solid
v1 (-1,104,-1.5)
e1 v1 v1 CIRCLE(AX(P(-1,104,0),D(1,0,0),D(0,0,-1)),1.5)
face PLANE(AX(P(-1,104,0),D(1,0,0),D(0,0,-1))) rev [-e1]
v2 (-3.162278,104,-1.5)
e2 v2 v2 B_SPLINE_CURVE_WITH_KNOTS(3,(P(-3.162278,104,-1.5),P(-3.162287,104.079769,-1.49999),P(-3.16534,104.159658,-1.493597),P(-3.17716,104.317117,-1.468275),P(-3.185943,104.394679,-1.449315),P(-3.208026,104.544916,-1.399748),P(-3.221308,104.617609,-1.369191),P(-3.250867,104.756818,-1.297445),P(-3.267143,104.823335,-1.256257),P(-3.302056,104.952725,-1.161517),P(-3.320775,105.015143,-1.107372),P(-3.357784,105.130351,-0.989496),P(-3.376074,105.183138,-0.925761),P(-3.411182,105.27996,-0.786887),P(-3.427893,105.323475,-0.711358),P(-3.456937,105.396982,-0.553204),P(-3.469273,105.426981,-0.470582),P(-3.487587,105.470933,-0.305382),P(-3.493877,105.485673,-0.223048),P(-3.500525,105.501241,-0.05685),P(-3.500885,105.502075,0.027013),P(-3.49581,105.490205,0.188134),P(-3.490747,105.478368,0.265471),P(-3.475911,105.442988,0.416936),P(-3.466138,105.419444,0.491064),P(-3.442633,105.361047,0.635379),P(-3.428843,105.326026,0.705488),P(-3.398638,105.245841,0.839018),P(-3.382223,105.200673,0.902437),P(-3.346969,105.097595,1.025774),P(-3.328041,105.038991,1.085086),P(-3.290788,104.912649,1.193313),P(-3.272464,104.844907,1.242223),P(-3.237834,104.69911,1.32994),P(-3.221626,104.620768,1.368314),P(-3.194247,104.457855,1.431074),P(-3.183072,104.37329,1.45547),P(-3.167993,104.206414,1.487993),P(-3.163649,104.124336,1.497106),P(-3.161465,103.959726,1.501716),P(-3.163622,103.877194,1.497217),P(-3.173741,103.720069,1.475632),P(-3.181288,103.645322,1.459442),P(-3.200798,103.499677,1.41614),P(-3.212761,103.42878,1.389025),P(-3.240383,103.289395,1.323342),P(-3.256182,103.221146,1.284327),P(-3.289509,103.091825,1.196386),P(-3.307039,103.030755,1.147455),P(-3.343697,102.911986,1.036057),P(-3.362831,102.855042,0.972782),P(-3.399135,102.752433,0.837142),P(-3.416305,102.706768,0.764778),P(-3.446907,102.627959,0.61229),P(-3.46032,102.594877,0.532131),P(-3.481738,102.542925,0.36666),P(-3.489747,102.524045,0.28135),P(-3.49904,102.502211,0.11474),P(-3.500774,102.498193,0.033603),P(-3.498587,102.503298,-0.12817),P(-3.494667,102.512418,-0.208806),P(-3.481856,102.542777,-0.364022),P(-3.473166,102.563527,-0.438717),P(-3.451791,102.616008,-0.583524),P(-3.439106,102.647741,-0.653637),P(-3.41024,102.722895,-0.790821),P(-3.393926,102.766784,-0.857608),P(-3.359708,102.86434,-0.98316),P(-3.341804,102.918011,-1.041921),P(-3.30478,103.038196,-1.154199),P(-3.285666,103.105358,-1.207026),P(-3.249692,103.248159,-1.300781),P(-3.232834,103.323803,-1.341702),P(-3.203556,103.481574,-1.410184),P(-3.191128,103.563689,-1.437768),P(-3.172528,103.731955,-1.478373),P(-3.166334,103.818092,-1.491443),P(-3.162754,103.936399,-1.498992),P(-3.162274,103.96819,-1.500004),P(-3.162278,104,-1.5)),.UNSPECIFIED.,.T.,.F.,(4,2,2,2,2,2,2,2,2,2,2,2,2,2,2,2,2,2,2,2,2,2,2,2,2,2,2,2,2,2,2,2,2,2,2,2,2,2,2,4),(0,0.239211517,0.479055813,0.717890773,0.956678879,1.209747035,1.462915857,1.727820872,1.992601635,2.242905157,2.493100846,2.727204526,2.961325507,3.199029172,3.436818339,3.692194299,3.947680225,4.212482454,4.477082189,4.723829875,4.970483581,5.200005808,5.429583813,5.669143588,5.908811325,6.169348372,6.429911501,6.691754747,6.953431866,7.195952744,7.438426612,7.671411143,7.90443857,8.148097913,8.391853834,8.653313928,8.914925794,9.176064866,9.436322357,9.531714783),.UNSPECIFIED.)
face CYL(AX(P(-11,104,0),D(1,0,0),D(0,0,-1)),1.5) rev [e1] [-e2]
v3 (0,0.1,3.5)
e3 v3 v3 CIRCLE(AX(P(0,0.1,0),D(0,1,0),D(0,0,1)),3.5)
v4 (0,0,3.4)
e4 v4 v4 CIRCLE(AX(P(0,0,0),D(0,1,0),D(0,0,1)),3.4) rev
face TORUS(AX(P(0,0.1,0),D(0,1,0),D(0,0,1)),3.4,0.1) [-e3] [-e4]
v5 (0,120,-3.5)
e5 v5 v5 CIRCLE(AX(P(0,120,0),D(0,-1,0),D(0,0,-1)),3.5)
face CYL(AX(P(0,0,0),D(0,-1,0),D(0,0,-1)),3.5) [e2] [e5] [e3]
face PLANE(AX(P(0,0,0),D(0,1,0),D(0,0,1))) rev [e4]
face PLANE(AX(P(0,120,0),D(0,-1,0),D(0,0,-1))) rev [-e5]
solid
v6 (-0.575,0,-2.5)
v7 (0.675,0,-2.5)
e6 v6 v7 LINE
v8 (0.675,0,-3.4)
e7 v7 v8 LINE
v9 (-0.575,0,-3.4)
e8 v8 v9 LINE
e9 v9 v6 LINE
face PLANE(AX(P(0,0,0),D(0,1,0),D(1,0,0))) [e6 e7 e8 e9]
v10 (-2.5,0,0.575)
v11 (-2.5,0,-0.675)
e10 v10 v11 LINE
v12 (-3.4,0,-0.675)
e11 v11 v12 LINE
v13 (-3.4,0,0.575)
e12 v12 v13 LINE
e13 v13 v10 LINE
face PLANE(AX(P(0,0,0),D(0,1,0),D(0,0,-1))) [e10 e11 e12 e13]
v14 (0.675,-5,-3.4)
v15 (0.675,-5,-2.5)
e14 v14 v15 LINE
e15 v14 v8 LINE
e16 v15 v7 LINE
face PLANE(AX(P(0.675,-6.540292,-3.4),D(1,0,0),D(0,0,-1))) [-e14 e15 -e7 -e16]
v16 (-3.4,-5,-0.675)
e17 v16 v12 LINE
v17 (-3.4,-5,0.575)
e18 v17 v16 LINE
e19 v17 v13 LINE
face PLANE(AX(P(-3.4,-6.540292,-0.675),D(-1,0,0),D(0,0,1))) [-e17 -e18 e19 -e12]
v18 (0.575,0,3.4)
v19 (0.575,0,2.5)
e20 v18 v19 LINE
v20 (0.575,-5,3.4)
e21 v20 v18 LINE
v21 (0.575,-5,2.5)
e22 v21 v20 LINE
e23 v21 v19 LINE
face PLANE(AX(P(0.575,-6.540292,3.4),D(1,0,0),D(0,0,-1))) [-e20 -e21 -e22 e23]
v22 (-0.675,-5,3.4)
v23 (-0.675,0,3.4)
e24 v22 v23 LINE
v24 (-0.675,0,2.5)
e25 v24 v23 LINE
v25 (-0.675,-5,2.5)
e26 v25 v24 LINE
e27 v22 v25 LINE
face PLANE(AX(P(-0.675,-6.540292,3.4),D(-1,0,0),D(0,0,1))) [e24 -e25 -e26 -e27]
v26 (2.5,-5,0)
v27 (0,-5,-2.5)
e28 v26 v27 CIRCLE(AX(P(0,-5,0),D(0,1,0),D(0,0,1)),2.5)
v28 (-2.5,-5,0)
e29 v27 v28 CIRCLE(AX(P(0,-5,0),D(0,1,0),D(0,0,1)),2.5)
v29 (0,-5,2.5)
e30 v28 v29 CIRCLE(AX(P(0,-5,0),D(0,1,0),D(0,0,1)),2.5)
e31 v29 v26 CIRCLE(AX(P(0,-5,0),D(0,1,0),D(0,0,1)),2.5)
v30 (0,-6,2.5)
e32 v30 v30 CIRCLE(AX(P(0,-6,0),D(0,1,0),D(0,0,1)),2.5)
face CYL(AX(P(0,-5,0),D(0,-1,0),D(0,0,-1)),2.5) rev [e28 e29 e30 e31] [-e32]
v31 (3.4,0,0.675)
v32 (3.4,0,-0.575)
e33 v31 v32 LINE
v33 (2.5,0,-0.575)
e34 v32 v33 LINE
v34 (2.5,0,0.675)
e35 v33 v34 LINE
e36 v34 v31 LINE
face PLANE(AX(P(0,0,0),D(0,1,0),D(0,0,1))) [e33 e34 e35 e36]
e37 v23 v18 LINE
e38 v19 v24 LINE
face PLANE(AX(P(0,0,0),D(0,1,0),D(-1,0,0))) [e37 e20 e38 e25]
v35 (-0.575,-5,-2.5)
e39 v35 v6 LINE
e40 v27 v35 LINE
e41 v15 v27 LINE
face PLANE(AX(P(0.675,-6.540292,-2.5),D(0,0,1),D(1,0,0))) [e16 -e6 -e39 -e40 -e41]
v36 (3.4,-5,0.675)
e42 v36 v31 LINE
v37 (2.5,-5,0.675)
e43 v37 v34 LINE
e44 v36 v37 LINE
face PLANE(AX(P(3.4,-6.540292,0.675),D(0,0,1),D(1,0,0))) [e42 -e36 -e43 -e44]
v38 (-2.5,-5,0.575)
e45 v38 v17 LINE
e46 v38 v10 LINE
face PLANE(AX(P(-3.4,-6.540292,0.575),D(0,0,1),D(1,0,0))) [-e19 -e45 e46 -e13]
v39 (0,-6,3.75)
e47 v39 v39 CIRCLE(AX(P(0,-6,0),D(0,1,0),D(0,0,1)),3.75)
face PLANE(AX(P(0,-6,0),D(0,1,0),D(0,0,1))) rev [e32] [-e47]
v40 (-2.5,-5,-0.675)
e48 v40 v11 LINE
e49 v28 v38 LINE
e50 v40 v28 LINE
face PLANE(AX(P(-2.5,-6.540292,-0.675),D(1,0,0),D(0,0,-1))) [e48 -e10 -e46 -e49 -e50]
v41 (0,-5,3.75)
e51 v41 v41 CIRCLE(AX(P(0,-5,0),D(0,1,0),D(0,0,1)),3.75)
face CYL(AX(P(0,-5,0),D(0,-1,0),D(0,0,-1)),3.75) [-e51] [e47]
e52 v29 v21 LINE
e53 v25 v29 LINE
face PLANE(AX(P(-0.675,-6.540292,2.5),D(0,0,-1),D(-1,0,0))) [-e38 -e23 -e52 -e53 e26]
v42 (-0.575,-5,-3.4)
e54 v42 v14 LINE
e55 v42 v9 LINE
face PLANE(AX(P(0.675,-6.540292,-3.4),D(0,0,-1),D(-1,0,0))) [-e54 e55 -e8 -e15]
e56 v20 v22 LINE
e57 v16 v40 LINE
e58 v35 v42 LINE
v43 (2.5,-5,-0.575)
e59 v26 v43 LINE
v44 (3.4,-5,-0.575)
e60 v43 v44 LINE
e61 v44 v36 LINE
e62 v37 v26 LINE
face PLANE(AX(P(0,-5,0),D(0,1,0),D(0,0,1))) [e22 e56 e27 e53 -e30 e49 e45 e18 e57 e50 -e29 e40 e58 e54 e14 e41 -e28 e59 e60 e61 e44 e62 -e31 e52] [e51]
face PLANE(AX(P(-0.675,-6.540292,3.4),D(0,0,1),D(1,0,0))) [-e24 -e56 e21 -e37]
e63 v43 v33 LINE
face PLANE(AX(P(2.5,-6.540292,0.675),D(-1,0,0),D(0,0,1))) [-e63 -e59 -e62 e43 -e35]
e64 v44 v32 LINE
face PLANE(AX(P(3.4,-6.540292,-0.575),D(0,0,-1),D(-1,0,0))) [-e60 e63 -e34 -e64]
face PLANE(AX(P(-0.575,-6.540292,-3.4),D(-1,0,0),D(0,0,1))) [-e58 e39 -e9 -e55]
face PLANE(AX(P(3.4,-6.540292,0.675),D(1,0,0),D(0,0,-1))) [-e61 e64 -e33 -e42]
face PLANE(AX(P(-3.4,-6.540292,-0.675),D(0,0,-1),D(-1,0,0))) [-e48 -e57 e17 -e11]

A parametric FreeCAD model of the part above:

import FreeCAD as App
import Part
import Sketcher


def edges_at(feature, points):
    """Names of the edges that pass closest to the given points."""
    edges = feature.Shape.Edges
    near = lambda p: min(range(len(edges)), key=lambda i: edges[i].distToShape(Part.Vertex(*p))[0])
    return sorted({f"Edge{near(p) + 1}" for p in points})

doc = App.newDocument("Part")
body = doc.addObject("PartDesign::Body", "Body")

# Sketch on XY plane
sketch1 = body.newObject("Sketcher::SketchObject", "Sketch")
sketch1.AttachmentSupport = (doc.getObject("XY_Plane"), [""])
sketch1.MapMode = "FlatFace"
sketch1.addGeometry([
    Part.LineSegment(App.Vector(-3.5, 120, 0), App.Vector(-3.5, 0, 0)),
    Part.LineSegment(App.Vector(-3.5, 0, 0), App.Vector(0, 0, 0)),
    Part.LineSegment(App.Vector(0, 0, 0), App.Vector(0, 120, 0)),
    Part.LineSegment(App.Vector(0, 120, 0), App.Vector(-3.5, 120, 0)),
], False)
sketch1.addConstraint([
    Sketcher.Constraint("Coincident", 0, 2, 1, 1),
    Sketcher.Constraint("Coincident", 1, 2, 2, 1),
    Sketcher.Constraint("Coincident", 2, 2, 3, 1),
    Sketcher.Constraint("Coincident", 3, 2, 0, 1),
    Sketcher.Constraint("Vertical", 0),
    Sketcher.Constraint("Horizontal", 1),
    Sketcher.Constraint("Vertical", 2),
    Sketcher.Constraint("Horizontal", 3),
    Sketcher.Constraint("Coincident", 1, 2, -1, 1),
    Sketcher.Constraint("DistanceY", 0, 2, 0, 1, 120.0),
    Sketcher.Constraint("DistanceX", 1, 1, 1, 2, 3.5),
])
revolution = body.newObject("PartDesign::Revolution", "Revolution")
revolution.Profile = sketch1
revolution.ReferenceAxis = (sketch1, ["V_Axis"])
revolution.Angle = 360
doc.recompute()

fillet = body.newObject("PartDesign::Fillet", "Fillet")
fillet.Base = (revolution, edges_at(revolution, [(0, 0, 3.5)]))
fillet.Radius = 0.1

# Sketch on YZ plane
sketch2 = body.newObject("Sketcher::SketchObject", "Sketch001")
sketch2.AttachmentSupport = (doc.getObject("YZ_Plane"), [""])
sketch2.MapMode = "FlatFace"
sketch2.AttachmentOffset = App.Placement(App.Vector(0, 0, -1), App.Rotation())
sketch2.addGeometry(Part.Circle(App.Vector(104, 0, 0), App.Vector(0, 0, 1), 1.5), False)
sketch2.addConstraint([
    Sketcher.Constraint("PointOnObject", 0, 3, -1),
    Sketcher.Constraint("Diameter", 0, 3.0),
    Sketcher.Constraint("DistanceX", -1, 1, 0, 3, 104.0),
])
pocket1 = body.newObject("PartDesign::Pocket", "Pocket")
pocket1.Profile = sketch2
pocket1.Length = 10
body2 = doc.addObject("PartDesign::Body", "Body001")

# Sketch on XZ plane
sketch3 = body2.newObject("Sketcher::SketchObject", "Sketch002")
sketch3.AttachmentSupport = (doc.getObject("XZ_Plane001"), [""])
sketch3.MapMode = "FlatFace"
sketch3.AttachmentOffset = App.Placement(App.Vector(0, 0, 6), App.Rotation())
sketch3.addGeometry([
    Part.Circle(App.Vector(0, 0, 0), App.Vector(0, 0, 1), 3.8),
    Part.Circle(App.Vector(0, 0, 0), App.Vector(0, 0, 1), 2.5),
], False)
sketch3.addConstraint([
    Sketcher.Constraint("Coincident", 0, 3, -1, 1),
    Sketcher.Constraint("Coincident", 1, 3, -1, 1),
    Sketcher.Constraint("Diameter", 1, 5.0),
    Sketcher.Constraint("Diameter", 0, 7.5),
])
pad1 = body2.newObject("PartDesign::Pad", "Pad")
pad1.Profile = sketch3
pad1.Length = 1
pad1.Reversed = True

# Sketch on XZ plane
sketch4 = body2.newObject("Sketcher::SketchObject", "Sketch003")
sketch4.AttachmentSupport = (doc.getObject("XZ_Plane001"), [""])
sketch4.MapMode = "FlatFace"
sketch4.addGeometry([
    Part.LineSegment(App.Vector(2.5, -0.6, 0), App.Vector(2.5, 0.7, 0)),
    Part.LineSegment(App.Vector(2.5, 0.7, 0), App.Vector(3.4, 0.7, 0)),
    Part.LineSegment(App.Vector(3.4, 0.7, 0), App.Vector(3.4, -0.6, 0)),
    Part.LineSegment(App.Vector(3.4, -0.6, 0), App.Vector(2.5, -0.6, 0)),
], False)
sketch4.addConstraint([
    Sketcher.Constraint("Coincident", 0, 2, 1, 1),
    Sketcher.Constraint("Coincident", 1, 2, 2, 1),
    Sketcher.Constraint("Coincident", 2, 2, 3, 1),
    Sketcher.Constraint("Coincident", 3, 2, 0, 1),
    Sketcher.Constraint("Vertical", 0),
    Sketcher.Constraint("Horizontal", 1),
    Sketcher.Constraint("Vertical", 2),
    Sketcher.Constraint("Horizontal", 3),
    Sketcher.Constraint("DistanceX", 1, 1, 1, 2, 0.9),
    Sketcher.Constraint("DistanceY", 0, 1, 0, 2, 1.25),
    Sketcher.Constraint("DistanceX", -1, 1, 0, 2, 2.5),
    Sketcher.Constraint("DistanceY", -1, 1, 0, 2, 0.675),
])
pad2 = body2.newObject("PartDesign::Pad", "Pad001")
pad2.Profile = sketch4
pad2.Length = 5
doc.recompute()

polarpattern = body2.newObject("PartDesign::PolarPattern", "PolarPattern")
polarpattern.Originals = [pad2]
polarpattern.Axis = (doc.getObject("Y_Axis001"), [""])
polarpattern.Angle = 360
polarpattern.Occurrences = 4
body2.Tip = polarpattern

doc.recompute()
